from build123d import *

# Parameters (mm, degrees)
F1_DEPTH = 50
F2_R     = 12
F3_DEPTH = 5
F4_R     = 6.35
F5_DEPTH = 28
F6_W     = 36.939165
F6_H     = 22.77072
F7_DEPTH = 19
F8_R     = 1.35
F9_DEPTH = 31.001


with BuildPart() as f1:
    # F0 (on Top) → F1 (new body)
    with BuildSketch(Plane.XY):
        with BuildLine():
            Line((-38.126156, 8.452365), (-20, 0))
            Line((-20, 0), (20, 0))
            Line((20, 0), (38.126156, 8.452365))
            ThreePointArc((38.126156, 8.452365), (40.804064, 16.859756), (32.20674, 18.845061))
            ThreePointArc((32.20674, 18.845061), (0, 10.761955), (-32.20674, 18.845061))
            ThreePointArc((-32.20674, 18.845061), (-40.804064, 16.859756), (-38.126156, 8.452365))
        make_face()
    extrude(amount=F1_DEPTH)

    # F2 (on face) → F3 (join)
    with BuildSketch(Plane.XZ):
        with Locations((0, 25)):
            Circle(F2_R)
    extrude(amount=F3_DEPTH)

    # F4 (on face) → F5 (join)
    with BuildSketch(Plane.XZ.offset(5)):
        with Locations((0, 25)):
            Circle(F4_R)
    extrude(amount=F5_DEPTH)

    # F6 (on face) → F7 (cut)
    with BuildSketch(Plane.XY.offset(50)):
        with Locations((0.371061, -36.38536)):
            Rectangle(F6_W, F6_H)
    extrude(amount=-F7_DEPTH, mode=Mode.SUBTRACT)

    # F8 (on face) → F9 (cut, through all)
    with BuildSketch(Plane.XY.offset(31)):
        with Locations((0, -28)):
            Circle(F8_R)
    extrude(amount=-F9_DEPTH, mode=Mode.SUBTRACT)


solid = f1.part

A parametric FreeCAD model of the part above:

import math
import FreeCAD as App
import Part
import Sketcher
Q = App.Units.Quantity


def add_polygon(sketch, points):
    """Adds a closed chain of lines whose ends are joined by coincident constraints."""
    first, n = sketch.GeometryCount, len(points)
    for a, b in zip(points, points[1:] + points[:1]):
        sketch.addGeometry(Part.LineSegment(App.Vector(*a, 0), App.Vector(*b, 0)), False)
    for i in range(n):
        sketch.addConstraint(Sketcher.Constraint("Coincident", first + i, 2, first + (i + 1) % n, 1))

doc = App.newDocument("Part")
body = doc.addObject("PartDesign::Body", "Body")

sketch1 = body.newObject("Sketcher::SketchObject", "Sketch")
sketch1.AttachmentSupport = (doc.getObject("XY_Plane"), [""])
sketch1.MapMode = "FlatFace"
sketch1.addGeometry(Part.LineSegment(App.Vector(-38.126156, 8.452365, 0), App.Vector(-20, 0, 0)), False)
sketch1.addGeometry(Part.LineSegment(App.Vector(-20, 0, 0), App.Vector(20, 0, 0)), False)
sketch1.addGeometry(Part.LineSegment(App.Vector(20, 0, 0), App.Vector(38.126156, 8.452365, 0)), False)
sketch1.addGeometry(Part.ArcOfCircle(Part.Circle(App.Vector(35.590446, 13.890212, 0), App.Vector(0, 0, 1), 6), math.radians(-65.000001), math.radians(124.329484)), False)
sketch1.addGeometry(Part.ArcOfCircle(Part.Circle(App.Vector(0, 78.966597, 0), App.Vector(0, 0, 1), 68.204642), math.radians(-118.177682), math.radians(-61.822318)), False)
sketch1.addGeometry(Part.ArcOfCircle(Part.Circle(App.Vector(-35.590446, 13.890212, 0), App.Vector(0, 0, 1), 6), math.radians(55.670516), math.radians(245.000001)), False)
sketch1.addConstraint(Sketcher.Constraint("Coincident", 0, 2, 1, 1))
sketch1.addConstraint(Sketcher.Constraint("Coincident", 1, 2, 2, 1))
sketch1.addConstraint(Sketcher.Constraint("Tangent", 2, 2, 3, 1))
sketch1.addConstraint(Sketcher.Constraint("Coincident", 3, 2, 4, 2))
sketch1.addConstraint(Sketcher.Constraint("Coincident", 4, 1, 5, 1))
sketch1.addConstraint(Sketcher.Constraint("Tangent", 5, 2, 0, 1))
sketch1.addConstraint(Sketcher.Constraint("Horizontal", 1))
sketch1.addConstraint(Sketcher.Constraint("Equal", 3, 5))
sketch1.addConstraint(Sketcher.Constraint("Symmetric", 0, 2, 1, 2, -1, 1))
sketch1.addConstraint(Sketcher.Constraint("Symmetric", 3, 3, 5, 3, -2))
sketch1.addConstraint(Sketcher.Constraint("PointOnObject", 4, 3, -2))
sketch1.addConstraint(Sketcher.Constraint("Radius", 3, Q("6 mm")))
sketch1.addConstraint(Sketcher.Constraint("DistanceX", 1, 1, 1, 2, Q("40 mm")))
sketch1.addConstraint(Sketcher.Constraint("Angle", 0, Q("-24.999999 deg")))
sketch1.addConstraint(Sketcher.Constraint("Distance", 0, Q("20 mm")))
sketch1.addConstraint(Sketcher.Constraint("Radius", 4, Q("68.204642 mm")))
sketch1.addConstraint(Sketcher.Constraint("DistanceX", -1, 1, 3, 2, Q("32.20674 mm")))
pad1 = body.newObject("PartDesign::Pad", "Pad")
pad1.Profile = sketch1
pad1.Length = 50

sketch2 = body.newObject("Sketcher::SketchObject", "Sketch001")
sketch2.AttachmentSupport = (doc.getObject("XZ_Plane"), [""])
sketch2.MapMode = "FlatFace"
sketch2.addGeometry(Part.Circle(App.Vector(0, 25, 0), App.Vector(0, 0, 1), 12), False)
sketch2.addConstraint(Sketcher.Constraint("PointOnObject", 0, 3, -2))
sketch2.addConstraint(Sketcher.Constraint("Diameter", 0, Q("24 mm")))
sketch2.addConstraint(Sketcher.Constraint("DistanceY", -1, 1, 0, 3, Q("25 mm")))
pad2 = body.newObject("PartDesign::Pad", "Pad001")
pad2.Profile = sketch2
pad2.Length = 5

sketch3 = body.newObject("Sketcher::SketchObject", "Sketch002")
sketch3.AttachmentSupport = (doc.getObject("XZ_Plane"), [""])
sketch3.MapMode = "FlatFace"
sketch3.AttachmentOffset = App.Placement(App.Vector(0, 0, 5), App.Rotation())
sketch3.addGeometry(Part.Circle(App.Vector(0, 25, 0), App.Vector(0, 0, 1), 6.35), False)
sketch3.addConstraint(Sketcher.Constraint("PointOnObject", 0, 3, -2))
sketch3.addConstraint(Sketcher.Constraint("Diameter", 0, Q("12.7 mm")))
sketch3.addConstraint(Sketcher.Constraint("DistanceY", -1, 1, 0, 3, Q("25 mm")))
pad3 = body.newObject("PartDesign::Pad", "Pad002")
pad3.Profile = sketch3
pad3.Length = 28

sketch4 = body.newObject("Sketcher::SketchObject", "Sketch003")
sketch4.AttachmentSupport = (doc.getObject("XY_Plane"), [""])
sketch4.MapMode = "FlatFace"
sketch4.AttachmentOffset = App.Placement(App.Vector(0, 0, 50), App.Rotation())
add_polygon(sketch4, [(-18.098522, -25), (-18.098522, -47.77072), (18.840643, -47.77072), (18.840643, -25)])
sketch4.addConstraint(Sketcher.Constraint("Vertical", 0))
sketch4.addConstraint(Sketcher.Constraint("Horizontal", 1))
sketch4.addConstraint(Sketcher.Constraint("Vertical", 2))
sketch4.addConstraint(Sketcher.Constraint("Horizontal", 3))
sketch4.addConstraint(Sketcher.Constraint("DistanceY", 2, 2, -1, 1, Q("25 mm")))
sketch4.addConstraint(Sketcher.Constraint("DistanceY", 0, 2, 0, 1, Q("22.77072 mm")))
sketch4.addConstraint(Sketcher.Constraint("DistanceX", 1, 1, 1, 2, Q("36.939165 mm")))
sketch4.addConstraint(Sketcher.Constraint("DistanceX", 0, 2, -1, 1, Q("18.098522 mm")))
pocket1 = body.newObject("PartDesign::Pocket", "Pocket")
pocket1.Profile = sketch4
pocket1.Length = 19

sketch5 = body.newObject("Sketcher::SketchObject", "Sketch004")
sketch5.AttachmentSupport = (doc.getObject("XY_Plane"), [""])
sketch5.MapMode = "FlatFace"
sketch5.AttachmentOffset = App.Placement(App.Vector(0, 0, 31), App.Rotation())
sketch5.addGeometry(Part.Circle(App.Vector(0, -28, 0), App.Vector(0, 0, 1), 1.35), False)
sketch5.addConstraint(Sketcher.Constraint("PointOnObject", 0, 3, -2))
sketch5.addConstraint(Sketcher.Constraint("Diameter", 0, Q("2.7 mm")))
sketch5.addConstraint(Sketcher.Constraint("DistanceY", 0, 3, -1, 1, Q("28 mm")))
pocket2 = body.newObject("PartDesign::Pocket", "Pocket001")
pocket2.Profile = sketch5
pocket2.Type = "ThroughAll"

doc.recompute()
